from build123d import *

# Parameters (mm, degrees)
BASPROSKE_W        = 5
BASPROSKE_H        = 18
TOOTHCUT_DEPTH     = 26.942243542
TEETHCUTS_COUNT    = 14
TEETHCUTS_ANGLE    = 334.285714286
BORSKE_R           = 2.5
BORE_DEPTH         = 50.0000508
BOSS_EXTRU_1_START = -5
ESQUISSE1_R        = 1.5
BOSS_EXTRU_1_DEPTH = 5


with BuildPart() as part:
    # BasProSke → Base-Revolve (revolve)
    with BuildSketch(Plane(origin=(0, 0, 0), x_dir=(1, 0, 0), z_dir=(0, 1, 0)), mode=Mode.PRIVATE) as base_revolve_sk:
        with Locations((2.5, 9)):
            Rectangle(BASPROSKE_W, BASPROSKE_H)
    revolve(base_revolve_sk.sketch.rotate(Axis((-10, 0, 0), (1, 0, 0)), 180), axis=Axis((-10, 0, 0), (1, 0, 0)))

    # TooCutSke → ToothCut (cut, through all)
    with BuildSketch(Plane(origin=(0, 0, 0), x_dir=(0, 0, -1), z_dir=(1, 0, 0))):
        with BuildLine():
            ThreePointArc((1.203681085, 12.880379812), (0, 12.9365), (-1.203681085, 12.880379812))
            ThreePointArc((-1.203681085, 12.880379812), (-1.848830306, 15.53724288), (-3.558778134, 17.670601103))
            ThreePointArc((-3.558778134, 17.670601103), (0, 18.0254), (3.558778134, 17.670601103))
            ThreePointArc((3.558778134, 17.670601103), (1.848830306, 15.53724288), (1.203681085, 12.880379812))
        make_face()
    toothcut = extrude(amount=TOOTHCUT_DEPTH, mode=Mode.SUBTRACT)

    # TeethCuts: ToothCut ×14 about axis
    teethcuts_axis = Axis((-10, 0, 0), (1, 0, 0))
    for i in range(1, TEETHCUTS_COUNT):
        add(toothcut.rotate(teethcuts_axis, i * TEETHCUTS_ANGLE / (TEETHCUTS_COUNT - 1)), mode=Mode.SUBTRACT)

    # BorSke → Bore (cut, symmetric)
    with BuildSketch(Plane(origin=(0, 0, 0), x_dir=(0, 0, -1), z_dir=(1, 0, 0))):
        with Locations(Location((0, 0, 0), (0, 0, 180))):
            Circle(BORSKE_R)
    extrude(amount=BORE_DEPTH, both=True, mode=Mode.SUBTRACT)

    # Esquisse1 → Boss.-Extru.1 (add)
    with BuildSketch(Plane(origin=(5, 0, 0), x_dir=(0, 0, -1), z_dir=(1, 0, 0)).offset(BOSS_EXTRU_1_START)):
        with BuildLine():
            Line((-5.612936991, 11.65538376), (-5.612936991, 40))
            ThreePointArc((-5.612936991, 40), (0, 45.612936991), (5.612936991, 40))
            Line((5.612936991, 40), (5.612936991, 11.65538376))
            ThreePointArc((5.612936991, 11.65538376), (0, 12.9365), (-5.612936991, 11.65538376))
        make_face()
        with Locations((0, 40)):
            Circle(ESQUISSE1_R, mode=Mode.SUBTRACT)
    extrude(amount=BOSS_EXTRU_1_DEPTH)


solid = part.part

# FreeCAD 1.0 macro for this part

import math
import FreeCAD as App
import Part
import Sketcher
from FreeCAD import Vector
Q = App.Units.Quantity

doc = App.newDocument("Part")
body = doc.addObject("PartDesign::Body", "Body")

sketch1 = body.newObject("Sketcher::SketchObject", "Sketch")
sketch1.AttachmentSupport = (doc.getObject("XZ_Plane"), [""])
sketch1.MapMode = "FlatFace"
sketch1.addGeometry(Part.LineSegment(Vector(0, -18, 0), Vector(0, 0, 0)), False)
sketch1.addGeometry(Part.LineSegment(Vector(0, 0, 0), Vector(5, 0, 0)), False)
sketch1.addGeometry(Part.LineSegment(Vector(5, 0, 0), Vector(5, -18, 0)), False)
sketch1.addGeometry(Part.LineSegment(Vector(5, -18, 0), Vector(0, -18, 0)), False)
sketch1.addConstraint(Sketcher.Constraint("Coincident", 0, 2, 1, 1))
sketch1.addConstraint(Sketcher.Constraint("Coincident", 1, 2, 2, 1))
sketch1.addConstraint(Sketcher.Constraint("Coincident", 2, 2, 3, 1))
sketch1.addConstraint(Sketcher.Constraint("Coincident", 3, 2, 0, 1))
sketch1.addConstraint(Sketcher.Constraint("Vertical", 0))
sketch1.addConstraint(Sketcher.Constraint("Horizontal", 1))
sketch1.addConstraint(Sketcher.Constraint("Vertical", 2))
sketch1.addConstraint(Sketcher.Constraint("Horizontal", 3))
sketch1.addConstraint(Sketcher.Constraint("Coincident", 0, 2, -1, 1))
sketch1.addConstraint(Sketcher.Constraint("DistanceX", 1, 1, 1, 2, Q("5 mm")))
sketch1.addConstraint(Sketcher.Constraint("DistanceY", 0, 1, 0, 2, Q("18 mm")))
revolution = body.newObject("PartDesign::Revolution", "Revolution")
revolution.Profile = sketch1
revolution.ReferenceAxis = (sketch1, ["H_Axis"])
revolution.Angle = 360

sketch2 = body.newObject("Sketcher::SketchObject", "Sketch001")
sketch2.AttachmentSupport = (doc.getObject("YZ_Plane"), [""])
sketch2.MapMode = "FlatFace"
sketch2.addGeometry(Part.ArcOfCircle(Part.Circle(Vector(0, 0, 0), Vector(0, 0, 1), 12.9), math.radians(-5.34), math.radians(5.34)), False)
sketch2.addGeometry(Part.ArcOfCircle(Part.Circle(Vector(12.8, -7.5, 0), Vector(0, 0, 1), 6.3), math.radians(39), math.radians(89)), False)
sketch2.addGeometry(Part.ArcOfCircle(Part.Circle(Vector(0, 0, 0), Vector(0, 0, 1), 18), math.radians(-11), math.radians(11)), False)
sketch2.addGeometry(Part.ArcOfCircle(Part.Circle(Vector(12.8, 7.5, 0), Vector(0, 0, 1), 6.3), math.radians(-89), math.radians(-39)), False)
sketch2.addConstraint(Sketcher.Constraint("Coincident", 0, 1, 1, 2))
sketch2.addConstraint(Sketcher.Constraint("Coincident", 1, 1, 2, 1))
sketch2.addConstraint(Sketcher.Constraint("Coincident", 2, 2, 3, 2))
sketch2.addConstraint(Sketcher.Constraint("Coincident", 3, 1, 0, 2))
sketch2.addConstraint(Sketcher.Constraint("Coincident", 0, 3, -1, 1))
sketch2.addConstraint(Sketcher.Constraint("Coincident", 2, 3, -1, 1))
sketch2.addConstraint(Sketcher.Constraint("Equal", 1, 3))
sketch2.addConstraint(Sketcher.Constraint("Symmetric", 1, 3, 3, 3, -1))
sketch2.addConstraint(Sketcher.Constraint("Radius", 1, Q("6.3 mm")))
sketch2.addConstraint(Sketcher.Constraint("Radius", 0, Q("12.9365 mm")))
sketch2.addConstraint(Sketcher.Constraint("Radius", 2, Q("18.0254 mm")))
sketch2.addConstraint(Sketcher.Constraint("DistanceX", -1, 1, 1, 1, Q("17.670601 mm")))
sketch2.addConstraint(Sketcher.Constraint("DistanceX", -1, 1, 1, 3, Q("12.757641 mm")))
pocket1 = body.newObject("PartDesign::Pocket", "Pocket")
pocket1.Profile = sketch2
pocket1.Type = "ThroughAll"
pocket1.Reversed = True
doc.recompute()

polarpattern = body.newObject("PartDesign::PolarPattern", "PolarPattern")
polarpattern.Originals = [pocket1]
polarpattern.Axis = (doc.getObject("X_Axis"), [""])
polarpattern.Angle = 360
polarpattern.Occurrences = 14
body.Tip = polarpattern

sketch3 = body.newObject("Sketcher::SketchObject", "Sketch002")
sketch3.AttachmentSupport = (doc.getObject("YZ_Plane"), [""])
sketch3.MapMode = "FlatFace"
sketch3.addGeometry(Part.Circle(Vector(0, 0, 0), Vector(0, 0, 1), 2.5), False)
sketch3.addConstraint(Sketcher.Constraint("Coincident", 0, 3, -1, 1))
sketch3.addConstraint(Sketcher.Constraint("Diameter", 0, Q("5 mm")))
pocket2 = body.newObject("PartDesign::Pocket", "Pocket001")
pocket2.Profile = sketch3
pocket2.Length = 100.000102
pocket2.Midplane = True

sketch4 = body.newObject("Sketcher::SketchObject", "Sketch003")
sketch4.AttachmentSupport = (doc.getObject("YZ_Plane"), [""])
sketch4.MapMode = "FlatFace"
sketch4.addGeometry(Part.LineSegment(Vector(40, 5.6, 0), Vector(11.7, 5.6, 0)), False)
sketch4.addGeometry(Part.ArcOfCircle(Part.Circle(Vector(0, 0, 0), Vector(0, 0, 1), 12.9), math.radians(-26), math.radians(26)), False)
sketch4.addGeometry(Part.LineSegment(Vector(11.7, -5.6, 0), Vector(40, -5.6, 0)), False)
sketch4.addGeometry(Part.ArcOfCircle(Part.Circle(Vector(40, 0, 0), Vector(0, 0, 1), 5.6), math.radians(-90), math.radians(90)), False)
sketch4.addGeometry(Part.Circle(Vector(40, 0, 0), Vector(0, 0, 1), 1.5), False)
sketch4.addConstraint(Sketcher.Constraint("Coincident", 0, 2, 1, 2))
sketch4.addConstraint(Sketcher.Constraint("Coincident", 1, 1, 2, 1))
sketch4.addConstraint(Sketcher.Constraint("Tangent", 2, 2, 3, 1))
sketch4.addConstraint(Sketcher.Constraint("Tangent", 3, 2, 0, 1))
sketch4.addConstraint(Sketcher.Constraint("Horizontal", 0))
sketch4.addConstraint(Sketcher.Constraint("Horizontal", 2))
sketch4.addConstraint(Sketcher.Constraint("Coincident", 1, 3, -1, 1))
sketch4.addConstraint(Sketcher.Constraint("Coincident", 4, 3, 3, 3))
sketch4.addConstraint(Sketcher.Constraint("PointOnObject", 3, 3, -1))
sketch4.addConstraint(Sketcher.Constraint("Diameter", 4, Q("3 mm")))
sketch4.addConstraint(Sketcher.Constraint("DistanceX", -1, 1, 3, 3, Q("40 mm")))
sketch4.addConstraint(Sketcher.Constraint("Radius", 1, Q("12.9365 mm")))
sketch4.addConstraint(Sketcher.Constraint("Radius", 3, Q("5.612937 mm")))
pad1 = body.newObject("PartDesign::Pad", "Pad")
pad1.Profile = sketch4
pad1.Length = 5

doc.recompute()
